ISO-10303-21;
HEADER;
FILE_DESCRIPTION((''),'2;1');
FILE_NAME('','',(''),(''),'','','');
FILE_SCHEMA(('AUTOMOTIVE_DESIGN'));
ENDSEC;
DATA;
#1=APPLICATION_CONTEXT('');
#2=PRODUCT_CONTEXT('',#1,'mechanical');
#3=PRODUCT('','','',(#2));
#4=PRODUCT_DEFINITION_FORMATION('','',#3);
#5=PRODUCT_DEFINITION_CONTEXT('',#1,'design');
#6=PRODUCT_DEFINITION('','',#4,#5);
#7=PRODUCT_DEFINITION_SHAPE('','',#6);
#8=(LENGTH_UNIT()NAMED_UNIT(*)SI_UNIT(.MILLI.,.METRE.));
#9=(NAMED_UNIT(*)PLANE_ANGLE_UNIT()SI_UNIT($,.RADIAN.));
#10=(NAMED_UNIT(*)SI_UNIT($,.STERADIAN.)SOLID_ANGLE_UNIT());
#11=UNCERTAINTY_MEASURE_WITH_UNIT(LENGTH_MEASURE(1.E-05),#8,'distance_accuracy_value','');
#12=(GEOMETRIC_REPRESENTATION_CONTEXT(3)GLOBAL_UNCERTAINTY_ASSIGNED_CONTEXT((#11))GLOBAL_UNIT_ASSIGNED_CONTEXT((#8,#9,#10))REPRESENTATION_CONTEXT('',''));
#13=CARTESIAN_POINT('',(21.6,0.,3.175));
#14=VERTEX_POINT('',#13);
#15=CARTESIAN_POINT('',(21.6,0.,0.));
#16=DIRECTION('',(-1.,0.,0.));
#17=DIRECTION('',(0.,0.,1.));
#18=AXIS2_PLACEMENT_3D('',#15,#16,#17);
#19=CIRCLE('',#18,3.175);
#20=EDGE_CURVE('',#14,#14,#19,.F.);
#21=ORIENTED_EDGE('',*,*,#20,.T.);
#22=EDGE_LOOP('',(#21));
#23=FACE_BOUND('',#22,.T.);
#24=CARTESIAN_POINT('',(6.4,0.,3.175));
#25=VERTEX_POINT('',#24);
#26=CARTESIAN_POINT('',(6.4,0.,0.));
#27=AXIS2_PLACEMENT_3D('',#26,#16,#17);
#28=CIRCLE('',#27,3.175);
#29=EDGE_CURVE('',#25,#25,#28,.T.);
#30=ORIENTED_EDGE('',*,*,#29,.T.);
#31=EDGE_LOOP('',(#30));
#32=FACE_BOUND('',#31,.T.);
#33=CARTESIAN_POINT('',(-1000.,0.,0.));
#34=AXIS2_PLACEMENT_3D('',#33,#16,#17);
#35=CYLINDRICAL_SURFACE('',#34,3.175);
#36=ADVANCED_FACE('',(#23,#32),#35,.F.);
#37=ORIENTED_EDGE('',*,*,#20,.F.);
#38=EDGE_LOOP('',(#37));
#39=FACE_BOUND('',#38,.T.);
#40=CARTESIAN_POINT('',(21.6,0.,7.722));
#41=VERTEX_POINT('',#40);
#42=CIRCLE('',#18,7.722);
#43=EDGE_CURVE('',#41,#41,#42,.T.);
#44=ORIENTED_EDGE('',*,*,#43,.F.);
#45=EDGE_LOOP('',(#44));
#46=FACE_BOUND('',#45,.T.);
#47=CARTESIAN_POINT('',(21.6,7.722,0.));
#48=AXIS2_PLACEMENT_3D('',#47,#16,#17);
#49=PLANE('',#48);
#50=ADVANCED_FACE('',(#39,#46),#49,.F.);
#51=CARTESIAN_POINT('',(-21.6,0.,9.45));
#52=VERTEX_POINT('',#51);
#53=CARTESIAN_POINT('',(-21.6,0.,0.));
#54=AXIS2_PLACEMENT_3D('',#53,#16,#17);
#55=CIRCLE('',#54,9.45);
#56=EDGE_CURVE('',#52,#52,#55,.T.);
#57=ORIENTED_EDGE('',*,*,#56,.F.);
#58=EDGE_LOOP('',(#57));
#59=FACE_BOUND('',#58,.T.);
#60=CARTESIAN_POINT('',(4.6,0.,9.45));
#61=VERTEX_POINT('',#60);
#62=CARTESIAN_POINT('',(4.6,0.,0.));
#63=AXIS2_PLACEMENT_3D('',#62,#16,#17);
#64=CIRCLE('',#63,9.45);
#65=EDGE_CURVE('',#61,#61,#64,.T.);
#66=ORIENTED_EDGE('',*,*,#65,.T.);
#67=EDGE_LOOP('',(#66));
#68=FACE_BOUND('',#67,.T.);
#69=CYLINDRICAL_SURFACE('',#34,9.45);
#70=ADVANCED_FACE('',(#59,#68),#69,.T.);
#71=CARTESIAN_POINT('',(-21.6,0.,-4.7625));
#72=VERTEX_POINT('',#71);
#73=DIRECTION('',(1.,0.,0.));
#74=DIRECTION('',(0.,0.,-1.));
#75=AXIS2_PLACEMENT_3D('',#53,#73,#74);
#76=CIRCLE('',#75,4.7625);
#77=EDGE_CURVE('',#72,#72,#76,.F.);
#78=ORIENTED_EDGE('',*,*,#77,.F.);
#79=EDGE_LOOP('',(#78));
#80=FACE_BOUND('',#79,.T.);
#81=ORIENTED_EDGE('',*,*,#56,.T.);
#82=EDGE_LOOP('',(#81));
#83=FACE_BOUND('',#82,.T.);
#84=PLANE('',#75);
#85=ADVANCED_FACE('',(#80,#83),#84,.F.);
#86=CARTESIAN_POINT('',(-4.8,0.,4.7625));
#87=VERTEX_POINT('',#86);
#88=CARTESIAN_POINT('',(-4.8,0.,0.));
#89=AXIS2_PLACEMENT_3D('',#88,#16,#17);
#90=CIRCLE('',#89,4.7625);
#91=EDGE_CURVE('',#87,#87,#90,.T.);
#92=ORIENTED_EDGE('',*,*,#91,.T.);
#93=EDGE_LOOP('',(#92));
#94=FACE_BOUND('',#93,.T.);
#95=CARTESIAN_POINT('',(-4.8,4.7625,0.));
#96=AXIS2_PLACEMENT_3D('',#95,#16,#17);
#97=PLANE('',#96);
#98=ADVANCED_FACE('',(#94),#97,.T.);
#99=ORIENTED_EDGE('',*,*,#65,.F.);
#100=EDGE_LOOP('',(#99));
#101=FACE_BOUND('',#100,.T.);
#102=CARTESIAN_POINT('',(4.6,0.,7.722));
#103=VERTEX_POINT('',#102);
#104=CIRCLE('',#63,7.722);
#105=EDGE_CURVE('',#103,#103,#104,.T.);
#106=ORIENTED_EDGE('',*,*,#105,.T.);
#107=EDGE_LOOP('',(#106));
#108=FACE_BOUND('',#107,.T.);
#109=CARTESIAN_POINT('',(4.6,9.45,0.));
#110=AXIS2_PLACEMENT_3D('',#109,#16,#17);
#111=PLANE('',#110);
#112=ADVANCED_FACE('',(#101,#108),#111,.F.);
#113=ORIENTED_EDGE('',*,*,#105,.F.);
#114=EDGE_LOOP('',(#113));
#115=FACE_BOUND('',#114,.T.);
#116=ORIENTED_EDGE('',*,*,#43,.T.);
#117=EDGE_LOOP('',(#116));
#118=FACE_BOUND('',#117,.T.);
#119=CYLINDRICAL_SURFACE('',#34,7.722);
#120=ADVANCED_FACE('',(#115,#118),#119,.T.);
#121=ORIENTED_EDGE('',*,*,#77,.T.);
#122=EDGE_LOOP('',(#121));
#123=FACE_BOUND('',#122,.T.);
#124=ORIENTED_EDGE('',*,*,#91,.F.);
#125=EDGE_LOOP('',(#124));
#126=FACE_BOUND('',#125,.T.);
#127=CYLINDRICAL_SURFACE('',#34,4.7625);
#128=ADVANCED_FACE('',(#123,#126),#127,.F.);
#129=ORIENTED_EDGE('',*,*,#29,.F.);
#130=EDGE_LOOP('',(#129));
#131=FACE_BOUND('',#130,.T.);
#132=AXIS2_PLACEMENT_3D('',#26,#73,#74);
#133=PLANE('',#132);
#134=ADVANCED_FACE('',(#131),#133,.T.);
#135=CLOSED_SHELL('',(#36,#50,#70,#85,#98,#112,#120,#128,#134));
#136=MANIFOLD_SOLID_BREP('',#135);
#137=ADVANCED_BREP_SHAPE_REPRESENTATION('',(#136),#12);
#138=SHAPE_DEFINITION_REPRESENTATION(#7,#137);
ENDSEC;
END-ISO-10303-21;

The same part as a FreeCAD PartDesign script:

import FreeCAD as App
import Part
import Sketcher

V = App.Vector
Q = App.Units.Quantity


def add_polygon(sketch, points):
    """Adds a closed chain of lines whose ends are joined by coincident constraints."""
    first, n = sketch.GeometryCount, len(points)
    for a, b in zip(points, points[1:] + points[:1]):
        sketch.addGeometry(Part.LineSegment(App.Vector(*a, 0), App.Vector(*b, 0)), False)
    for i in range(n):
        sketch.addConstraint(Sketcher.Constraint("Coincident", first + i, 2, first + (i + 1) % n, 1))

doc = App.newDocument("Part")
body = doc.addObject("PartDesign::Body", "Body")

sketch1 = doc.addObject("Sketcher::SketchObject", "Sketch")
body.addObject(sketch1)
sketch1.AttachmentSupport = (doc.XY_Plane, [""])
sketch1.MapMode = "FlatFace"
add_polygon(sketch1, [(-21.6, 9.4), (-21.6, 0), (21.6, 0), (21.6, 7.7), (4.6, 7.7), (4.6, 9.4)])
sketch1.addConstraint(Sketcher.Constraint("Vertical", 0))
sketch1.addConstraint(Sketcher.Constraint("Horizontal", 1))
sketch1.addConstraint(Sketcher.Constraint("Vertical", 2))
sketch1.addConstraint(Sketcher.Constraint("Horizontal", 3))
sketch1.addConstraint(Sketcher.Constraint("Vertical", 4))
sketch1.addConstraint(Sketcher.Constraint("Horizontal", 5))
sketch1.addConstraint(Sketcher.Constraint("Symmetric", 0, 2, 1, 2, -1, 1))
sketch1.addConstraint(Sketcher.Constraint("DistanceX", 3, 2, 3, 1, Q("17 mm")))
sketch1.addConstraint(Sketcher.Constraint("DistanceX", 1, 1, 1, 2, Q("43.2 mm")))
sketch1.addConstraint(Sketcher.Constraint("DistanceY", 0, 2, 0, 1, Q("9.45 mm")))
sketch1.addConstraint(Sketcher.Constraint("DistanceY", 2, 1, 2, 2, Q("7.722 mm")))
revolution = doc.addObject("PartDesign::Revolution", "Revolution")
body.addObject(revolution)
revolution.Profile = sketch1
revolution.ReferenceAxis = (sketch1, ["H_Axis"])
revolution.Angle = 360

sketch2 = doc.addObject("Sketcher::SketchObject", "Sketch001")
body.addObject(sketch2)
sketch2.AttachmentSupport = (doc.XY_Plane, [""])
sketch2.MapMode = "FlatFace"
add_polygon(sketch2, [(-22.6, 4.8), (-22.6, 0), (-4.8, 0), (-4.8, 4.8)])
sketch2.addConstraint(Sketcher.Constraint("Vertical", 0))
sketch2.addConstraint(Sketcher.Constraint("Horizontal", 1))
sketch2.addConstraint(Sketcher.Constraint("Vertical", 2))
sketch2.addConstraint(Sketcher.Constraint("Horizontal", 3))
sketch2.addConstraint(Sketcher.Constraint("PointOnObject", 0, 2, -1))
sketch2.addConstraint(Sketcher.Constraint("DistanceX", 1, 1, 1, 2, Q("17.8 mm")))
sketch2.addConstraint(Sketcher.Constraint("DistanceX", 0, 2, -1, 1, Q("22.6 mm")))
sketch2.addConstraint(Sketcher.Constraint("DistanceY", 0, 2, 0, 1, Q("4.7625 mm")))
groove = doc.addObject("PartDesign::Groove", "Groove")
body.addObject(groove)
groove.Profile = sketch2
groove.ReferenceAxis = (sketch2, ["H_Axis"])
groove.Angle = 360

sketch3 = doc.addObject("Sketcher::SketchObject", "Sketch002")
body.addObject(sketch3)
sketch3.AttachmentSupport = (doc.XY_Plane, [""])
sketch3.MapMode = "FlatFace"
add_polygon(sketch3, [(6.4, 3.2), (6.4, 0), (22.6, 0), (22.6, 3.2)])
sketch3.addConstraint(Sketcher.Constraint("Vertical", 0))
sketch3.addConstraint(Sketcher.Constraint("Horizontal", 1))
sketch3.addConstraint(Sketcher.Constraint("Vertical", 2))
sketch3.addConstraint(Sketcher.Constraint("Horizontal", 3))
sketch3.addConstraint(Sketcher.Constraint("PointOnObject", 0, 2, -1))
sketch3.addConstraint(Sketcher.Constraint("DistanceX", 1, 1, 1, 2, Q("16.2 mm")))
sketch3.addConstraint(Sketcher.Constraint("DistanceX", -1, 1, 0, 2, Q("6.4 mm")))
sketch3.addConstraint(Sketcher.Constraint("DistanceY", 0, 2, 0, 1, Q("3.175 mm")))
groove2 = doc.addObject("PartDesign::Groove", "Groove001")
body.addObject(groove2)
groove2.Profile = sketch3
groove2.ReferenceAxis = (sketch3, ["H_Axis"])
groove2.Angle = 360

doc.recompute()
